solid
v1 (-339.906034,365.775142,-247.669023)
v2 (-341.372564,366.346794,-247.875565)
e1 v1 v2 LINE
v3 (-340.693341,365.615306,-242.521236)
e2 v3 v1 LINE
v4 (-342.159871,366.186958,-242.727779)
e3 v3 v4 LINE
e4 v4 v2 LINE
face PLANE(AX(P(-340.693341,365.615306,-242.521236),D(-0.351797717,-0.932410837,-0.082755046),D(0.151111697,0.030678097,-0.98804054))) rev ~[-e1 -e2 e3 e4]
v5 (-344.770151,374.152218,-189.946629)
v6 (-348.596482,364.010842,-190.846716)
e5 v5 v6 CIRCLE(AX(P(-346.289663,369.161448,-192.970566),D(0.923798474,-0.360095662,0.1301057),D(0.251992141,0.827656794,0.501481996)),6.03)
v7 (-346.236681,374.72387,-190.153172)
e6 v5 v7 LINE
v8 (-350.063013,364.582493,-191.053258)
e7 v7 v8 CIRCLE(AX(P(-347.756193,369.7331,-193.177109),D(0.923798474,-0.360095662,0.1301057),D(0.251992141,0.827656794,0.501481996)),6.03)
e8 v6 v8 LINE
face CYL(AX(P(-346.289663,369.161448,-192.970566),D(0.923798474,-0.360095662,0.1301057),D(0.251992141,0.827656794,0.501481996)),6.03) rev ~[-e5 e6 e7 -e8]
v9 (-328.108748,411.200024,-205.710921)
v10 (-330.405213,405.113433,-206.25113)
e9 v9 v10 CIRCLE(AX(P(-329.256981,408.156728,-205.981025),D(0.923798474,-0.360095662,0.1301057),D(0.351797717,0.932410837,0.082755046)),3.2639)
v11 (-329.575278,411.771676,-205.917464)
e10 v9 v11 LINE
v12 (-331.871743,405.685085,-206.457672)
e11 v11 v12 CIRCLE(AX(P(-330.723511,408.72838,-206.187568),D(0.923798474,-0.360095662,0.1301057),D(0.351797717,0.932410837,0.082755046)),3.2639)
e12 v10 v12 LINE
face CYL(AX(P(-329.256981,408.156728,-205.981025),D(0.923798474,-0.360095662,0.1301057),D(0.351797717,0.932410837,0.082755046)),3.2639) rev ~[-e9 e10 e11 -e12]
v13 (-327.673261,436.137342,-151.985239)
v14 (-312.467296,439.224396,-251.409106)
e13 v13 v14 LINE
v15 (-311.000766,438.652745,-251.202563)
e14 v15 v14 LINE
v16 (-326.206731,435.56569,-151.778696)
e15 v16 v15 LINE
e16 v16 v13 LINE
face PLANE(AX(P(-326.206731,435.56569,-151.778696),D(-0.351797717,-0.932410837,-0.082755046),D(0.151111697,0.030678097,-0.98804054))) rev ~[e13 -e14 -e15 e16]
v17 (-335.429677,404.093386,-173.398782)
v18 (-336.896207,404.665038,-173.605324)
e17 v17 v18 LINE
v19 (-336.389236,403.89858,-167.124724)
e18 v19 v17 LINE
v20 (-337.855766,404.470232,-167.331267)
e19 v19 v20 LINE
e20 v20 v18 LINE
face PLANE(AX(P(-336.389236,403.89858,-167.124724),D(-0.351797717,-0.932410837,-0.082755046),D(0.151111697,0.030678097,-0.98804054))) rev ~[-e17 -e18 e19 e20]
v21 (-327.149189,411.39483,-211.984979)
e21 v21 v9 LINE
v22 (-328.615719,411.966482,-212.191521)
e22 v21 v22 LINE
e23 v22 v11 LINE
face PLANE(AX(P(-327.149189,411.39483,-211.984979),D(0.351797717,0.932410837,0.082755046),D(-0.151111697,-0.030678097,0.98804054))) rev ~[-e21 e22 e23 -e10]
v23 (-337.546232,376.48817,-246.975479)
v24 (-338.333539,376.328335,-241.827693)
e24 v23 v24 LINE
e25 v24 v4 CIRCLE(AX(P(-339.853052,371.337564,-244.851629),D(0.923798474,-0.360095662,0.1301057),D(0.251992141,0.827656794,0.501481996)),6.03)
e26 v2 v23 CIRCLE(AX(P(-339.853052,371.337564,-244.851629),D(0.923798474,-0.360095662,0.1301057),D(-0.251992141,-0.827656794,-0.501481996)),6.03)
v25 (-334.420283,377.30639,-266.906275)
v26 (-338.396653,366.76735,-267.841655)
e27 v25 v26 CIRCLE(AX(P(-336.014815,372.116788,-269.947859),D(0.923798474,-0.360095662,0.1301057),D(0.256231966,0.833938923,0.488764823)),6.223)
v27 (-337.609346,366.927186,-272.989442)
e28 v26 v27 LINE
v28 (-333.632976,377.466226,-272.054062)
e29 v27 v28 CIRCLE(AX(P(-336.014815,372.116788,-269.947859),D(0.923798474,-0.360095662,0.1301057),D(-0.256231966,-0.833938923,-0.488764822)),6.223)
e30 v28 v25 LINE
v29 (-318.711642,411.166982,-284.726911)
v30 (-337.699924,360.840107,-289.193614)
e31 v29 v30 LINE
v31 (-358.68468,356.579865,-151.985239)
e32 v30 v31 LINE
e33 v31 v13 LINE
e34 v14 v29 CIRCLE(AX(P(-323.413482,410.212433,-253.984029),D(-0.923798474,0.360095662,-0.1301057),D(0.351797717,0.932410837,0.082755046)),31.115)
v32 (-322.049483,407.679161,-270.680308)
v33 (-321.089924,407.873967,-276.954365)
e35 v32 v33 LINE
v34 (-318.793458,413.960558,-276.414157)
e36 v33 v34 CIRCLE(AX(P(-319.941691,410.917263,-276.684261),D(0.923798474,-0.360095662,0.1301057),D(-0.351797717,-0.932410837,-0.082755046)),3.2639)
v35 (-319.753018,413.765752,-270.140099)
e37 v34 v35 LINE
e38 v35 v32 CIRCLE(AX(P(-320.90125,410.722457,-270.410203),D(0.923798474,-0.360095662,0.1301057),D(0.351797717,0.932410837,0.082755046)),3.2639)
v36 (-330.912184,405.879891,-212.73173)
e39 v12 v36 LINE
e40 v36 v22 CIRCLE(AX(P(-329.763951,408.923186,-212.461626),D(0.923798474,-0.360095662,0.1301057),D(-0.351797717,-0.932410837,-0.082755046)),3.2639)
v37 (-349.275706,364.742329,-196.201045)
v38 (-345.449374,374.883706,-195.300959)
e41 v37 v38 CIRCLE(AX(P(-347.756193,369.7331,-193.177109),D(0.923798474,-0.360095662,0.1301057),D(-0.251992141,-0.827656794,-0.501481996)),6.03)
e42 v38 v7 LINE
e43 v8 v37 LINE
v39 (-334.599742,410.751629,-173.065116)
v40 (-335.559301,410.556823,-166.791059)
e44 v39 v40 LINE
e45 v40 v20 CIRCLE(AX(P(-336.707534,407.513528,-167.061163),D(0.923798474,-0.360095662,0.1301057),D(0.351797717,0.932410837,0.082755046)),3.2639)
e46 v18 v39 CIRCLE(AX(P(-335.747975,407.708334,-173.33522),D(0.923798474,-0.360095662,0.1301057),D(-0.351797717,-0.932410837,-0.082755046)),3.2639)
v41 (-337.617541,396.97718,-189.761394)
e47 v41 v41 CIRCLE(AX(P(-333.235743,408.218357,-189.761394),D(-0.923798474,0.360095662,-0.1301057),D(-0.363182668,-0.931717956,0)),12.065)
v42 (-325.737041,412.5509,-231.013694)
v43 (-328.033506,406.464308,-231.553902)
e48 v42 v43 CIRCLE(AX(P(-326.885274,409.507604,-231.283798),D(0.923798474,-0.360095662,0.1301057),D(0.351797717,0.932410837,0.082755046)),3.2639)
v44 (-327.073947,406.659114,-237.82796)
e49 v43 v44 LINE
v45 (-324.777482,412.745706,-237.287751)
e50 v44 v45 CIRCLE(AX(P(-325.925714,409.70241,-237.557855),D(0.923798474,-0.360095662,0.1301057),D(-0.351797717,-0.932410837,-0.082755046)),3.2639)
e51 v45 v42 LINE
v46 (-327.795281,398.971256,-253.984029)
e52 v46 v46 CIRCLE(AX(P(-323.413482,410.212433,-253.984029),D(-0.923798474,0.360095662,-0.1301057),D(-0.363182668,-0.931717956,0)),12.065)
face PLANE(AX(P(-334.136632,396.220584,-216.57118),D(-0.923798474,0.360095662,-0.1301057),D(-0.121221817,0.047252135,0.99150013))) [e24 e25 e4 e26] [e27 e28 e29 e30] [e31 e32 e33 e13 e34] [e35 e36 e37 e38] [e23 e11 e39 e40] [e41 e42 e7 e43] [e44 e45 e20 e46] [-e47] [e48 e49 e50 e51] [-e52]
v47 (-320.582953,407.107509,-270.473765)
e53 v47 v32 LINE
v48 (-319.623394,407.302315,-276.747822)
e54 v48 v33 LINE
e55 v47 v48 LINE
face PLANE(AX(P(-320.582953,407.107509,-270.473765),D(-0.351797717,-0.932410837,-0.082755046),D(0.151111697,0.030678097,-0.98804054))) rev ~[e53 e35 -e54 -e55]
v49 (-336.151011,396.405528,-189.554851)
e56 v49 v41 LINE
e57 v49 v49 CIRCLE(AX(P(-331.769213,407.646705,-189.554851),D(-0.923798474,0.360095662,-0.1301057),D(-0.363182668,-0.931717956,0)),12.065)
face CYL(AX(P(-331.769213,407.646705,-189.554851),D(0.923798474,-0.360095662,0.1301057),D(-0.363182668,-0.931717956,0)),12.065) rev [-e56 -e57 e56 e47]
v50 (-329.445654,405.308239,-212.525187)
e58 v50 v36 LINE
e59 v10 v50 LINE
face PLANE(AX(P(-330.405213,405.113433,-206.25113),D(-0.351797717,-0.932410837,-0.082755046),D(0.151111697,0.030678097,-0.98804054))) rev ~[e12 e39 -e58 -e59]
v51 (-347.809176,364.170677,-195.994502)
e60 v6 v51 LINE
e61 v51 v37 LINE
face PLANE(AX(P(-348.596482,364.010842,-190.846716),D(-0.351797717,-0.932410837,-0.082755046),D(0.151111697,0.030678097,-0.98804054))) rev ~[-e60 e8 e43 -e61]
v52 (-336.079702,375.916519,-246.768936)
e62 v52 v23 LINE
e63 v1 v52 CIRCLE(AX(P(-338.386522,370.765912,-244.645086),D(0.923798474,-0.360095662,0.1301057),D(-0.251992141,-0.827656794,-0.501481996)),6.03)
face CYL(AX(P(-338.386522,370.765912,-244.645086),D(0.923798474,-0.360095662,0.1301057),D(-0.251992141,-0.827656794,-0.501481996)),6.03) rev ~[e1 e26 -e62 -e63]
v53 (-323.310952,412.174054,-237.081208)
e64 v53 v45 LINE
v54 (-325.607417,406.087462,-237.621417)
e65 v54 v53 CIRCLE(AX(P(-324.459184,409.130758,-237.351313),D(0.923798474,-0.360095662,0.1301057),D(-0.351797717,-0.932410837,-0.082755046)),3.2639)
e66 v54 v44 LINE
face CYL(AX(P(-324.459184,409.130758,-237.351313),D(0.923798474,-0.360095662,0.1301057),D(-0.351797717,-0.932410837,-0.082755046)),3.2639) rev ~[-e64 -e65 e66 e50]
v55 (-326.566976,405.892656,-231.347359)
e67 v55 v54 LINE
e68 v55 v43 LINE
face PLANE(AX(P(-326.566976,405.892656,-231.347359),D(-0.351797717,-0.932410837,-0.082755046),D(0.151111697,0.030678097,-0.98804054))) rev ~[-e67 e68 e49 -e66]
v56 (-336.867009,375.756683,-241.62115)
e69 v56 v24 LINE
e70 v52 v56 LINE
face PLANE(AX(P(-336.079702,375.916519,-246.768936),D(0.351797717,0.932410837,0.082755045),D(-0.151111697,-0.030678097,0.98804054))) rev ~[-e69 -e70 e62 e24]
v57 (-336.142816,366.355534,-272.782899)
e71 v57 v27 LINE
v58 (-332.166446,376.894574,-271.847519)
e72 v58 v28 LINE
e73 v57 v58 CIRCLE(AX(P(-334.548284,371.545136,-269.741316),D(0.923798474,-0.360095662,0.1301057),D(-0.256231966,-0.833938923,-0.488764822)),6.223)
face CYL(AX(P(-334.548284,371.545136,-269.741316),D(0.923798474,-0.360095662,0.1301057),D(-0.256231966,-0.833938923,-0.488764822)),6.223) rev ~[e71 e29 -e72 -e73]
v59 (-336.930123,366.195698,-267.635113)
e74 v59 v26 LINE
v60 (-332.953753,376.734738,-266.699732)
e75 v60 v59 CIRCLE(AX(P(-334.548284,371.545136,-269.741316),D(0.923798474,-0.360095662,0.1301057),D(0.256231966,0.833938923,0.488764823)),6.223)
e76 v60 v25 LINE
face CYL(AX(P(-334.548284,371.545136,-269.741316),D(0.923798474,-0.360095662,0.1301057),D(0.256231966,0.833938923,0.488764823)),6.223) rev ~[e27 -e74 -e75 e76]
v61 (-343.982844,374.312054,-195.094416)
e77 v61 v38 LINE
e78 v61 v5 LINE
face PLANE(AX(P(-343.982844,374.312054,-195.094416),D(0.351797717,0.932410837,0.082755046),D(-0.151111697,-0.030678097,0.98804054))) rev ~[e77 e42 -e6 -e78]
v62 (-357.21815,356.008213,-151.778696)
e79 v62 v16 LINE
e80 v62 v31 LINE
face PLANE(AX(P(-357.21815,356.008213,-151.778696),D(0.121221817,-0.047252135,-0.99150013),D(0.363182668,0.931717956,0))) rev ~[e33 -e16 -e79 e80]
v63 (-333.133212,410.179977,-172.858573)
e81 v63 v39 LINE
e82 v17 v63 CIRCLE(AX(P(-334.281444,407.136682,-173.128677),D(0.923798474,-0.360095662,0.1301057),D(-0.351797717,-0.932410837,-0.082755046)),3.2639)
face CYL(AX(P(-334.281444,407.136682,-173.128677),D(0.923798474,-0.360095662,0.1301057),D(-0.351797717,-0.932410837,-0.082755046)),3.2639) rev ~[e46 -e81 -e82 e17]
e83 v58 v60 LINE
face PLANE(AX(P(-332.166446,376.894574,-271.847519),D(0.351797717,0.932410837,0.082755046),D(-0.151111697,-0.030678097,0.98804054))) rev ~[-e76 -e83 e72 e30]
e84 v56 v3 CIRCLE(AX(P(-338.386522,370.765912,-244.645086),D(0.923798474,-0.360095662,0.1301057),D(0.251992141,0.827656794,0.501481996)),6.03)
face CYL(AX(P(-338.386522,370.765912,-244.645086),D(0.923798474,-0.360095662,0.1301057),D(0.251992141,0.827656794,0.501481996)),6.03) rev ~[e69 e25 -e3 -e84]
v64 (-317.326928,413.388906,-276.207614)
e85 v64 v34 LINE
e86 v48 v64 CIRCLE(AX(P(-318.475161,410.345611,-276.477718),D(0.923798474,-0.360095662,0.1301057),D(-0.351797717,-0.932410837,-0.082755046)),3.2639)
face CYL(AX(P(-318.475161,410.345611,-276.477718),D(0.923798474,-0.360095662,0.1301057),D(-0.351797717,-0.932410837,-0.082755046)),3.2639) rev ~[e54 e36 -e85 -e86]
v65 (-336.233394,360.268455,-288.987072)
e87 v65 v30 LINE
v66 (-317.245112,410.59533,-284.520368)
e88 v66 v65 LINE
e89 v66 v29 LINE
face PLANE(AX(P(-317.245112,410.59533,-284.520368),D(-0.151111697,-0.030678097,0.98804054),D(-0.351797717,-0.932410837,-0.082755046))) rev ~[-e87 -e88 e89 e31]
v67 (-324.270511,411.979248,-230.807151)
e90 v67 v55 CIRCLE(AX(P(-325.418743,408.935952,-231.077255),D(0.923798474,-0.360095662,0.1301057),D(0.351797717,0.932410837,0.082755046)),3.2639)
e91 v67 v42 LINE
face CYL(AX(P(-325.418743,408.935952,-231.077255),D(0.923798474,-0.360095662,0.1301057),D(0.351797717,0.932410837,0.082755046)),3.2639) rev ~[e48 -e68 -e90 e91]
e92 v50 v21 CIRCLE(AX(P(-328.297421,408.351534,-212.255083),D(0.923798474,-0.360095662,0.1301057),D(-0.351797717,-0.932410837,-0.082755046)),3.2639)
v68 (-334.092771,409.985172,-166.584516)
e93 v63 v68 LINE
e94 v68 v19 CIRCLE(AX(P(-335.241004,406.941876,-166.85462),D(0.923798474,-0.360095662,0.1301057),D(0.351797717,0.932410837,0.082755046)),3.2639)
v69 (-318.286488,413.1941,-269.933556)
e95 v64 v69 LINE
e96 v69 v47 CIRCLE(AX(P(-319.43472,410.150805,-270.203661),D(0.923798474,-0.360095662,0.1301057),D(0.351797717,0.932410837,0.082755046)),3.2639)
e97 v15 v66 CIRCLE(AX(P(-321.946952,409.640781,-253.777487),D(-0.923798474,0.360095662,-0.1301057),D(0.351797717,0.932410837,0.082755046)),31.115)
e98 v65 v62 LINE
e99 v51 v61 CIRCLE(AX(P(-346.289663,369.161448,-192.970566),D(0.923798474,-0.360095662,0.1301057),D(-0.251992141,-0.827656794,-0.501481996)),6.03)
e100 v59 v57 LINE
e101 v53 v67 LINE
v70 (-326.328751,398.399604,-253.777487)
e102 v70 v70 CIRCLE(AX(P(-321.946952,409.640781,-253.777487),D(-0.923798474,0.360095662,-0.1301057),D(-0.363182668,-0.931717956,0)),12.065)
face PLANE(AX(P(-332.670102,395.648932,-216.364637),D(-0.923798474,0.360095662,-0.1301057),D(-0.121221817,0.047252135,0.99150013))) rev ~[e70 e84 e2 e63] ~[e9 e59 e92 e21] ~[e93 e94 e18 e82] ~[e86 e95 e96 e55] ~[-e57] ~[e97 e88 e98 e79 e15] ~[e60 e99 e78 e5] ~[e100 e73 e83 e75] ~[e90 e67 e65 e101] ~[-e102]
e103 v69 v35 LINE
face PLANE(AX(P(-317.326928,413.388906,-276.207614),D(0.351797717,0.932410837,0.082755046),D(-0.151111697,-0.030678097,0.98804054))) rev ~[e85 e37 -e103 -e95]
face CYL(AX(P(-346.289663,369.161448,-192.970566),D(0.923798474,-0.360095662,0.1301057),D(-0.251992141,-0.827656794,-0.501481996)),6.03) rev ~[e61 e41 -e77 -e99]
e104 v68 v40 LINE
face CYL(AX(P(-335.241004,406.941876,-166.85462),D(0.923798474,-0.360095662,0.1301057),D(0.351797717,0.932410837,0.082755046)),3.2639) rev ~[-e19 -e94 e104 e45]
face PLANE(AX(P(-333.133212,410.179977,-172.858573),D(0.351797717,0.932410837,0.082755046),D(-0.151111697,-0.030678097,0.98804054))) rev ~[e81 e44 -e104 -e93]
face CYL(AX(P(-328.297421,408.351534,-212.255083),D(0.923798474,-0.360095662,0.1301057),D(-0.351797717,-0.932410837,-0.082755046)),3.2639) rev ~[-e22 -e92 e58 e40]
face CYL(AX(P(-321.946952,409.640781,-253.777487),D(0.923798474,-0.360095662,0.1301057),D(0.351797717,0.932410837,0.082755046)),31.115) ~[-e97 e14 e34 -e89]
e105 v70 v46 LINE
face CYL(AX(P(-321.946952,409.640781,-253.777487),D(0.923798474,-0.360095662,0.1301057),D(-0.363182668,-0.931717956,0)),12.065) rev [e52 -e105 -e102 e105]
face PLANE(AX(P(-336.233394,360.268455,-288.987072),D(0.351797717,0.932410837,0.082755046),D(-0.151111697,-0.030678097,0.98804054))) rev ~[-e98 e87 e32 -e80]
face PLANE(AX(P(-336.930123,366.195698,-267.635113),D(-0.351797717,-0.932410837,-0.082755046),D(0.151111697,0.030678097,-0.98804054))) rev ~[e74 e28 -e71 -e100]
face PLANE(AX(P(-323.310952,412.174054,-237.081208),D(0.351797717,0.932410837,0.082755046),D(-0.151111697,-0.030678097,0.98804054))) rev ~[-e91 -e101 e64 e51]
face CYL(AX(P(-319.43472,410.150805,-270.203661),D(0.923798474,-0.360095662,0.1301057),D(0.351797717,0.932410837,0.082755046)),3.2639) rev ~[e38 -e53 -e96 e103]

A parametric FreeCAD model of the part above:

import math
import FreeCAD as App
import Part
import Sketcher
Q = App.Units.Quantity

doc = App.newDocument("Part")
body = doc.addObject("PartDesign::Body", "Body")

# Sketch on an angled plane
sketch1 = body.newObject("Sketcher::SketchObject", "Sketch")
sketch1.Placement = App.Placement(App.Vector(-441.521969, 172.104794, -62.182961), App.Rotation(App.Vector(-0.121221817, 0.047252135, 0.99150013), App.Vector(0.363182668, 0.931717956, 0), App.Vector(-0.923798474, 0.360095662, -0.1301057), "ZXY"))
sketch1.addGeometry([
    Part.LineSegment(App.Vector(-228.7, 213.6, 0), App.Vector(-90.4, 202, 0)),  # 0
    Part.LineSegment(App.Vector(-90.4, 202, 0), App.Vector(-90.4, 287.4, 0)),  # 1
    Part.LineSegment(App.Vector(-90.4, 287.4, 0), App.Vector(-190.6, 295.8, 0)),  # 2
    Part.ArcOfCircle(Part.Circle(App.Vector(-193.2, 264.7, 0), App.Vector(0, 0, 1), 31.1), math.radians(85), math.radians(175)),  # 3
    Part.LineSegment(App.Vector(-224.2, 267.3, 0), App.Vector(-228.7, 213.6, 0)),  # 4
    Part.ArcOfCircle(Part.Circle(App.Vector(-209.3, 224.7, 0), App.Vector(0, 0, 1), 6.2), math.radians(110), math.radians(240)),  # 5
    Part.LineSegment(App.Vector(-211.5, 230.5, 0), App.Vector(-206.3, 230.1, 0)),  # 6
    Part.ArcOfCircle(Part.Circle(App.Vector(-209.3, 224.7, 0), App.Vector(0, 0, 1), 6.2), math.radians(-70), math.radians(60)),  # 7
    Part.LineSegment(App.Vector(-207.2, 218.8, 0), App.Vector(-212.4, 219.3, 0)),  # 8
    Part.ArcOfCircle(Part.Circle(App.Vector(-184, 222.6, 0), App.Vector(0, 0, 1), 6), math.radians(111), math.radians(240)),  # 9
    Part.LineSegment(App.Vector(-186.2, 228.2, 0), App.Vector(-181, 227.8, 0)),  # 10
    Part.ArcOfCircle(Part.Circle(App.Vector(-184, 222.6, 0), App.Vector(0, 0, 1), 6), math.radians(-69), math.radians(60)),  # 11
    Part.LineSegment(App.Vector(-181.9, 216.9, 0), App.Vector(-187.1, 217.4, 0)),  # 12
    Part.ArcOfCircle(Part.Circle(App.Vector(-131.9, 218.2, 0), App.Vector(0, 0, 1), 6), math.radians(111), math.radians(240)),  # 13
    Part.LineSegment(App.Vector(-134.1, 223.8, 0), App.Vector(-128.9, 223.4, 0)),  # 14
    Part.ArcOfCircle(Part.Circle(App.Vector(-131.9, 218.2, 0), App.Vector(0, 0, 1), 6), math.radians(-69), math.radians(60)),  # 15
    Part.LineSegment(App.Vector(-129.8, 212.6, 0), App.Vector(-135, 213, 0)),  # 16
    Part.ArcOfCircle(Part.Circle(App.Vector(-216.1, 266.7, 0), App.Vector(0, 0, 1), 3.3), math.radians(85), math.radians(265)),  # 17
    Part.LineSegment(App.Vector(-215.9, 269.9, 0), App.Vector(-209.5, 269.4, 0)),  # 18
    Part.ArcOfCircle(Part.Circle(App.Vector(-209.8, 266.1, 0), App.Vector(0, 0, 1), 3.3), math.radians(-95), math.radians(85)),  # 19
    Part.LineSegment(App.Vector(-210.1, 262.9, 0), App.Vector(-216.4, 263.4, 0)),  # 20
    Part.Circle(App.Vector(-193.2, 264.7, 0), App.Vector(0, 0, 1), 12.1),  # 21
    Part.ArcOfCircle(Part.Circle(App.Vector(-170.3, 262.8, 0), App.Vector(0, 0, 1), 3.3), math.radians(-95), math.radians(85)),  # 22
    Part.LineSegment(App.Vector(-170.6, 259.6, 0), App.Vector(-176.9, 260.1, 0)),  # 23
    Part.ArcOfCircle(Part.Circle(App.Vector(-176.7, 263.4, 0), App.Vector(0, 0, 1), 3.3), math.radians(85), math.radians(265)),  # 24
    Part.LineSegment(App.Vector(-176.4, 266.6, 0), App.Vector(-170.1, 266.1, 0)),  # 25
    Part.Circle(App.Vector(-128.5, 259.3, 0), App.Vector(0, 0, 1), 12.1),  # 26
    Part.ArcOfCircle(Part.Circle(App.Vector(-105.6, 257.4, 0), App.Vector(0, 0, 1), 3.3), math.radians(-95), math.radians(85)),  # 27
    Part.LineSegment(App.Vector(-105.8, 254.1, 0), App.Vector(-112.2, 254.7, 0)),  # 28
    Part.ArcOfCircle(Part.Circle(App.Vector(-111.9, 257.9, 0), App.Vector(0, 0, 1), 3.3), math.radians(85), math.radians(265)),  # 29
    Part.LineSegment(App.Vector(-111.6, 261.2, 0), App.Vector(-105.3, 260.7, 0)),  # 30
    Part.ArcOfCircle(Part.Circle(App.Vector(-151.4, 261.2, 0), App.Vector(0, 0, 1), 3.3), math.radians(85), math.radians(265)),  # 31
    Part.LineSegment(App.Vector(-151.1, 264.5, 0), App.Vector(-144.8, 264, 0)),  # 32
    Part.ArcOfCircle(Part.Circle(App.Vector(-145, 260.7, 0), App.Vector(0, 0, 1), 3.3), math.radians(-95), math.radians(85)),  # 33
    Part.LineSegment(App.Vector(-145.3, 257.5, 0), App.Vector(-151.6, 258, 0)),  # 34
], False)
sketch1.addConstraint([
    Sketcher.Constraint("Coincident", 0, 2, 1, 1),
    Sketcher.Constraint("Coincident", 1, 2, 2, 1),
    Sketcher.Constraint("Tangent", 2, 2, 3, 1),
    Sketcher.Constraint("Tangent", 3, 2, 4, 1),
    Sketcher.Constraint("Coincident", 4, 2, 0, 1),
    Sketcher.Constraint("Coincident", 5, 1, 6, 1),
    Sketcher.Constraint("Coincident", 6, 2, 7, 2),
    Sketcher.Constraint("Coincident", 7, 1, 8, 1),
    Sketcher.Constraint("Coincident", 8, 2, 5, 2),
    Sketcher.Constraint("Coincident", 9, 1, 10, 1),
    Sketcher.Constraint("Coincident", 10, 2, 11, 2),
    Sketcher.Constraint("Coincident", 11, 1, 12, 1),
    Sketcher.Constraint("Coincident", 12, 2, 9, 2),
    Sketcher.Constraint("Coincident", 13, 1, 14, 1),
    Sketcher.Constraint("Coincident", 14, 2, 15, 2),
    Sketcher.Constraint("Coincident", 15, 1, 16, 1),
    Sketcher.Constraint("Coincident", 16, 2, 13, 2),
    Sketcher.Constraint("Tangent", 17, 1, 18, 1),
    Sketcher.Constraint("Tangent", 18, 2, 19, 2),
    Sketcher.Constraint("Tangent", 19, 1, 20, 1),
    Sketcher.Constraint("Tangent", 20, 2, 17, 2),
    Sketcher.Constraint("Tangent", 22, 1, 23, 1),
    Sketcher.Constraint("Tangent", 23, 2, 24, 2),
    Sketcher.Constraint("Tangent", 24, 1, 25, 1),
    Sketcher.Constraint("Tangent", 25, 2, 22, 2),
    Sketcher.Constraint("Tangent", 27, 1, 28, 1),
    Sketcher.Constraint("Tangent", 28, 2, 29, 2),
    Sketcher.Constraint("Tangent", 29, 1, 30, 1),
    Sketcher.Constraint("Tangent", 30, 2, 27, 2),
    Sketcher.Constraint("Tangent", 31, 1, 32, 1),
    Sketcher.Constraint("Tangent", 32, 2, 33, 2),
    Sketcher.Constraint("Tangent", 33, 1, 34, 1),
    Sketcher.Constraint("Tangent", 34, 2, 31, 2),
    Sketcher.Constraint("Vertical", 1),
    Sketcher.Constraint("Coincident", 7, 3, 5, 3),
    Sketcher.Constraint("Coincident", 11, 3, 9, 3),
    Sketcher.Constraint("Coincident", 15, 3, 13, 3),
    Sketcher.Constraint("Coincident", 21, 3, 3, 3),
    Sketcher.Constraint("Equal", 5, 7),
    Sketcher.Constraint("Equal", 9, 11),
    Sketcher.Constraint("Equal", 11, 13),
    Sketcher.Constraint("Equal", 13, 15),
    Sketcher.Constraint("Equal", 17, 19),
    Sketcher.Constraint("Equal", 19, 22),
    Sketcher.Constraint("Equal", 22, 24),
    Sketcher.Constraint("Equal", 21, 26),
    Sketcher.Constraint("Equal", 24, 27),
    Sketcher.Constraint("Equal", 27, 29),
    Sketcher.Constraint("Equal", 29, 31),
    Sketcher.Constraint("Equal", 31, 33),
    Sketcher.Constraint("Parallel", 0, 2),
    Sketcher.Constraint("Perpendicular", 2, 4),
    Sketcher.Constraint("Perpendicular", 4, 6),
    Sketcher.Constraint("Parallel", 6, 8),
    Sketcher.Constraint("Parallel", 8, 10),
    Sketcher.Constraint("Parallel", 10, 12),
    Sketcher.Constraint("Parallel", 12, 14),
    Sketcher.Constraint("Parallel", 14, 16),
    Sketcher.Constraint("Parallel", 16, 18),
    Sketcher.Constraint("Parallel", 20, 23),
    Sketcher.Constraint("Parallel", 25, 28),
    Sketcher.Constraint("Parallel", 30, 32),
    Sketcher.Constraint("Equal", 6, 8),
    Sketcher.Constraint("Equal", 8, 10),
    Sketcher.Constraint("Equal", 10, 12),
    Sketcher.Constraint("Equal", 12, 14),
    Sketcher.Constraint("Equal", 14, 16),
    Sketcher.Constraint("Equal", 20, 23),
    Sketcher.Constraint("Equal", 25, 28),
    Sketcher.Constraint("Equal", 30, 32),
    Sketcher.Constraint("Diameter", 21, Q("0.95 in")),
    Sketcher.Constraint("Radius", 3, Q("1.225 in")),
    Sketcher.Constraint("Radius", 5, Q("0.245 in")),
    Sketcher.Constraint("Radius", 17, Q("0.1285 in")),
    Sketcher.Constraint("DistanceX", 26, 3, 0, 2, Q("1.5 in")),
    Sketcher.Constraint("Distance", 18, Q("0.25 in")),
    Sketcher.Constraint("Radius", 9, 6.03),
    Sketcher.Constraint("Distance", 4, Q("2.125 in")),
    Sketcher.Constraint("DistanceY", 13, 3, 29, 3, Q("1.5647002 in")),
    Sketcher.Constraint("DistanceY", 1, 1, 1, 2, 85.38794),
    Sketcher.Constraint("DistanceX", 5, 3, -1, 1, 209.337698),
    Sketcher.Constraint("DistanceX", 22, 1, -1, 1, 170.6146),
    Sketcher.Constraint("DistanceX", 27, 1, -1, 1, 105.841401),
    Sketcher.Constraint("DistanceX", 3, 3, 26, 3, 64.773199),
    Sketcher.Constraint("DistanceY", 31, 3, 22, 3, 1.589998),
    Sketcher.Constraint("DistanceY", 17, 3, 3, 2, 0.679401),
    Sketcher.Constraint("DistanceX", 7, 1, 6, 2, 0.943399),
    Sketcher.Constraint("DistanceY", 10, 2, 6, 2, 2.332498),
    Sketcher.Constraint("DistanceY", -1, 1, 3, 3, 264.744119),
    Sketcher.Constraint("DistanceY", -1, 1, 9, 3, 222.553138),
    Sketcher.Constraint("DistanceX", 17, 3, -1, 1, 216.13185),
    Sketcher.Constraint("DistanceY", -1, 1, 24, 3, 263.356522),
    Sketcher.Constraint("DistanceY", -1, 1, 27, 3, 257.401331),
    Sketcher.Constraint("DistanceX", 31, 3, -1, 1, 151.358651),
    Sketcher.Constraint("DistanceX", 13, 1, -1, 1, 134.05087),
    Sketcher.Constraint("DistanceX", 3, 3, 9, 3, 9.21069),
    Sketcher.Constraint("DistanceX", 19, 3, 3, 3, 16.566991),
    Sketcher.Constraint("DistanceY", 13, 3, 26, 3, 41.130981),
])
pad1 = body.newObject("PartDesign::Pad", "Pad")
pad1.Profile = sketch1
pad1.Length = Q("0.0625 in")

doc.recompute()
